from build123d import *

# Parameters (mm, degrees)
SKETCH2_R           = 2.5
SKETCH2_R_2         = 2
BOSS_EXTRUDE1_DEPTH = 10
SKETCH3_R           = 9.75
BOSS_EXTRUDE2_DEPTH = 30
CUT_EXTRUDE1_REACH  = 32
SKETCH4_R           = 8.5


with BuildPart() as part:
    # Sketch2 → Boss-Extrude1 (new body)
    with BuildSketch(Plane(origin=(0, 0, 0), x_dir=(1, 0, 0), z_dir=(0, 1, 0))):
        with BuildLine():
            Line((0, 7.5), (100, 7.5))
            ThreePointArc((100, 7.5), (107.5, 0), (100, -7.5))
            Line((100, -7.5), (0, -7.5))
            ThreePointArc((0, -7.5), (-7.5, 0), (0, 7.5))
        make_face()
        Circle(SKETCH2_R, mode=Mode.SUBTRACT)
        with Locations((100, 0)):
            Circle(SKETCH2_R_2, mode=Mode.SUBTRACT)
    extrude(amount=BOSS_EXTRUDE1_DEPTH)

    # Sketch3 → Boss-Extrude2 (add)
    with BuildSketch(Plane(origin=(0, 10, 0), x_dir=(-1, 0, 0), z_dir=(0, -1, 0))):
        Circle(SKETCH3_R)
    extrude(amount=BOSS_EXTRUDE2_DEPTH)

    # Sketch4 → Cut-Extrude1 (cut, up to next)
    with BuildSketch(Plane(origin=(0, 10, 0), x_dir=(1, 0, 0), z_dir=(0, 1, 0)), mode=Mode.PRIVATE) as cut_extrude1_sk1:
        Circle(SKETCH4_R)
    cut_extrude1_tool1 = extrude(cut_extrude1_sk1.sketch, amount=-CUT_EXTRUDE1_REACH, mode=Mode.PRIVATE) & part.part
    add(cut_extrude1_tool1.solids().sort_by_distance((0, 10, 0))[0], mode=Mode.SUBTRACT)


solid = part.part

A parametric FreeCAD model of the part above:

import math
import FreeCAD as App
import Part
import Sketcher
Q = App.Units.Quantity

doc = App.newDocument("Part")
body = doc.addObject("PartDesign::Body", "Body")

# Sketch on XZ plane
sketch1 = doc.addObject("Sketcher::SketchObject", "Sketch")
body.addObject(sketch1)
sketch1.AttachmentSupport = (doc.XZ_Plane, [""])
sketch1.MapMode = "FlatFace"
sketch1.addGeometry([
    Part.LineSegment(App.Vector(100, -7.5, 0), App.Vector(0, -7.5, 0)),  # 0
    Part.ArcOfCircle(Part.Circle(App.Vector(0, 0, 0), App.Vector(0, 0, 1), 7.5), math.radians(90), math.radians(270)),  # 1
    Part.LineSegment(App.Vector(0, 7.5, 0), App.Vector(100, 7.5, 0)),  # 2
    Part.ArcOfCircle(Part.Circle(App.Vector(100, 0, 0), App.Vector(0, 0, 1), 7.5), math.radians(-90), math.radians(90)),  # 3
    Part.Circle(App.Vector(100, 0, 0), App.Vector(0, 0, 1), 2),  # 4
    Part.Circle(App.Vector(0, 0, 0), App.Vector(0, 0, 1), 2.5),  # 5
], False)
sketch1.addConstraint([
    Sketcher.Constraint("Tangent", 0, 2, 1, 2),
    Sketcher.Constraint("Tangent", 1, 1, 2, 1),
    Sketcher.Constraint("Tangent", 2, 2, 3, 2),
    Sketcher.Constraint("Tangent", 3, 1, 0, 1),
    Sketcher.Constraint("Horizontal", 0),
    Sketcher.Constraint("Horizontal", 2),
    Sketcher.Constraint("Coincident", 1, 3, -1, 1),
    Sketcher.Constraint("Coincident", 5, 3, -1, 1),
    Sketcher.Constraint("Coincident", 4, 3, 3, 3),
    Sketcher.Constraint("Diameter", 4, Q("4 mm")),
    Sketcher.Constraint("Diameter", 5, Q("5 mm")),
    Sketcher.Constraint("Radius", 1, Q("7.5 mm")),
    Sketcher.Constraint("DistanceX", 0, 2, 0, 1, Q("100 mm")),
])
pad1 = doc.addObject("PartDesign::Pad", "Pad")
body.addObject(pad1)
pad1.Profile = sketch1
pad1.Length = 10
pad1.Reversed = True

# Sketch on XZ plane
sketch2 = doc.addObject("Sketcher::SketchObject", "Sketch001")
body.addObject(sketch2)
sketch2.AttachmentSupport = (doc.XZ_Plane, [""])
sketch2.MapMode = "FlatFace"
sketch2.AttachmentOffset = App.Placement(App.Vector(0, 0, -10), App.Rotation())
sketch2.addGeometry(Part.Circle(App.Vector(0, 0, 0), App.Vector(0, 0, 1), 10), False)
sketch2.addConstraint([
    Sketcher.Constraint("Coincident", 0, 3, -1, 1),
    Sketcher.Constraint("Diameter", 0, Q("19.5 mm")),
])
pad2 = doc.addObject("PartDesign::Pad", "Pad001")
body.addObject(pad2)
pad2.Profile = sketch2
pad2.Length = 30

# Sketch on XZ plane
sketch3 = doc.addObject("Sketcher::SketchObject", "Sketch002")
body.addObject(sketch3)
sketch3.AttachmentSupport = (doc.XZ_Plane, [""])
sketch3.MapMode = "FlatFace"
sketch3.AttachmentOffset = App.Placement(App.Vector(0, 0, -10), App.Rotation())
sketch3.addGeometry(Part.Circle(App.Vector(0, 0, 0), App.Vector(0, 0, 1), 8), False)
sketch3.addConstraint([
    Sketcher.Constraint("Coincident", 0, 3, -1, 1),
    Sketcher.Constraint("Diameter", 0, Q("17 mm")),
])
pocket1 = doc.addObject("PartDesign::Pocket", "Pocket")
body.addObject(pocket1)
pocket1.Profile = sketch3
pocket1.Type = "UpToFirst"
pocket1.Reversed = True

doc.recompute()
